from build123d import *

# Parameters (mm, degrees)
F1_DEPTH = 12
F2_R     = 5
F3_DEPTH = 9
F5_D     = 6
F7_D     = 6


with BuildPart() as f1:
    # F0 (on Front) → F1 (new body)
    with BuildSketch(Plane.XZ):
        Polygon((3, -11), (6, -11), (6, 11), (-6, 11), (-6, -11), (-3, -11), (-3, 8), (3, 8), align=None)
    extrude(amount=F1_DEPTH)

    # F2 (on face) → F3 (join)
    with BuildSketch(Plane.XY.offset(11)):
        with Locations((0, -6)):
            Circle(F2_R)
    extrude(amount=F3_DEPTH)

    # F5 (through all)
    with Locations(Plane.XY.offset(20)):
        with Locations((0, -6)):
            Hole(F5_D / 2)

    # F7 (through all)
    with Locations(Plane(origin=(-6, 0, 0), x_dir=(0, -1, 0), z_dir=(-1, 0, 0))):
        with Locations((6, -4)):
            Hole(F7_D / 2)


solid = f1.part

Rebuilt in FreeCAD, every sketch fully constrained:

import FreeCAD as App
import Part
import Sketcher
Q = App.Units.Quantity

doc = App.newDocument("Part")
params = doc.addObject("Spreadsheet::Sheet", "Params")
for row, (alias, value) in enumerate([
    ("sketch1_width", "3 mm"),
    ("sketch1_width2", "12 mm"),
    ("sketch1_height", "22 mm"),
    ("sketch1_height2", "19 mm"),
    ("pad1_length", "12 mm"),
    ("sketch2_diameter", "10 mm"),
    ("pad2_length", "9 mm"),
    ("sketch3_diameter", "6 mm"),
    ("hole_diameter", "6 mm"),
    ("sketch4_diameter", "6 mm"),
    ("hole2_diameter", "6 mm"),
], start=1):
    params.set(f"A{row}", alias)
    params.set(f"B{row}", "=" + value)
    params.setAlias(f"B{row}", alias)

body = doc.addObject("PartDesign::Body", "Body")

# Sketch on XZ plane
sketch1 = doc.addObject("Sketcher::SketchObject", "Sketch")
body.addObject(sketch1)
sketch1.AttachmentSupport = (doc.XZ_Plane, [""])
sketch1.MapMode = "FlatFace"
sketch1.addGeometry(Part.LineSegment(App.Vector(3, -11, 0), App.Vector(6, -11, 0)), False)
sketch1.addGeometry(Part.LineSegment(App.Vector(6, -11, 0), App.Vector(6, 11, 0)), False)
sketch1.addGeometry(Part.LineSegment(App.Vector(6, 11, 0), App.Vector(-6, 11, 0)), False)
sketch1.addGeometry(Part.LineSegment(App.Vector(-6, 11, 0), App.Vector(-6, -11, 0)), False)
sketch1.addGeometry(Part.LineSegment(App.Vector(-6, -11, 0), App.Vector(-3, -11, 0)), False)
sketch1.addGeometry(Part.LineSegment(App.Vector(-3, -11, 0), App.Vector(-3, 8, 0)), False)
sketch1.addGeometry(Part.LineSegment(App.Vector(-3, 8, 0), App.Vector(3, 8, 0)), False)
sketch1.addGeometry(Part.LineSegment(App.Vector(3, 8, 0), App.Vector(3, -11, 0)), False)
sketch1.addConstraint(Sketcher.Constraint("Coincident", 0, 2, 1, 1))
sketch1.addConstraint(Sketcher.Constraint("Coincident", 1, 2, 2, 1))
sketch1.addConstraint(Sketcher.Constraint("Coincident", 2, 2, 3, 1))
sketch1.addConstraint(Sketcher.Constraint("Coincident", 3, 2, 4, 1))
sketch1.addConstraint(Sketcher.Constraint("Coincident", 4, 2, 5, 1))
sketch1.addConstraint(Sketcher.Constraint("Coincident", 5, 2, 6, 1))
sketch1.addConstraint(Sketcher.Constraint("Coincident", 6, 2, 7, 1))
sketch1.addConstraint(Sketcher.Constraint("Coincident", 7, 2, 0, 1))
sketch1.addConstraint(Sketcher.Constraint("Horizontal", 0))
sketch1.addConstraint(Sketcher.Constraint("Vertical", 1))
sketch1.addConstraint(Sketcher.Constraint("Horizontal", 2))
sketch1.addConstraint(Sketcher.Constraint("Vertical", 3))
sketch1.addConstraint(Sketcher.Constraint("Horizontal", 4))
sketch1.addConstraint(Sketcher.Constraint("Vertical", 5))
sketch1.addConstraint(Sketcher.Constraint("Horizontal", 6))
sketch1.addConstraint(Sketcher.Constraint("Vertical", 7))
sketch1.addConstraint(Sketcher.Constraint("Symmetric", 0, 2, 2, 2, -1, 1))
sketch1.addConstraint(Sketcher.Constraint("Symmetric", 4, 2, 7, 2, -2))
sketch1.addConstraint(Sketcher.Constraint("DistanceX", 0, 1, 0, 2, Q("3 mm")))
sketch1.addConstraint(Sketcher.Constraint("DistanceX", 2, 2, 2, 1, Q("12 mm")))
sketch1.addConstraint(Sketcher.Constraint("DistanceY", 1, 1, 1, 2, Q("22 mm")))
sketch1.addConstraint(Sketcher.Constraint("DistanceY", 5, 1, 5, 2, Q("19 mm")))
sketch1.setExpression("Constraints[18]", "Params.sketch1_width")
sketch1.setExpression("Constraints[19]", "Params.sketch1_width2")
sketch1.setExpression("Constraints[20]", "Params.sketch1_height")
sketch1.setExpression("Constraints[21]", "Params.sketch1_height2")
pad1 = doc.addObject("PartDesign::Pad", "Pad")
body.addObject(pad1)
pad1.Profile = sketch1
pad1.setExpression("Length", "Params.pad1_length")

# Sketch on XY plane
sketch2 = doc.addObject("Sketcher::SketchObject", "Sketch001")
body.addObject(sketch2)
sketch2.AttachmentSupport = (doc.XY_Plane, [""])
sketch2.MapMode = "FlatFace"
sketch2.AttachmentOffset = App.Placement(App.Vector(0, 0, 11), App.Rotation())
sketch2.addGeometry(Part.Circle(App.Vector(0, -6, 0), App.Vector(0, 0, 1), 5), False)
sketch2.addConstraint(Sketcher.Constraint("PointOnObject", 0, 3, -2))
sketch2.addConstraint(Sketcher.Constraint("Diameter", 0, Q("10 mm")))
sketch2.addConstraint(Sketcher.Constraint("DistanceY", 0, 3, -1, 1, Q("6 mm")))
sketch2.setExpression("Constraints[1]", "Params.sketch2_diameter")
pad2 = doc.addObject("PartDesign::Pad", "Pad001")
body.addObject(pad2)
pad2.Profile = sketch2
pad2.setExpression("Length", "Params.pad2_length")

# Sketch on XY plane
sketch3 = doc.addObject("Sketcher::SketchObject", "Sketch002")
body.addObject(sketch3)
sketch3.AttachmentSupport = (doc.XY_Plane, [""])
sketch3.MapMode = "FlatFace"
sketch3.AttachmentOffset = App.Placement(App.Vector(0, 0, 20), App.Rotation())
sketch3.addGeometry(Part.Circle(App.Vector(0, -6, 0), App.Vector(0, 0, 1), 3), False)
sketch3.addConstraint(Sketcher.Constraint("PointOnObject", 0, 3, -2))
sketch3.addConstraint(Sketcher.Constraint("Diameter", 0, Q("6 mm")))
sketch3.addConstraint(Sketcher.Constraint("DistanceY", 0, 3, -1, 1, Q("6 mm")))
sketch3.setExpression("Constraints[1]", "Params.sketch3_diameter")
doc.recompute()
hole = doc.addObject("PartDesign::Hole", "Hole")
body.addObject(hole)
hole.Profile = sketch3
hole.ThreadType = "None"
hole.setExpression("Diameter", "Params.hole_diameter")
hole.DepthType = "ThroughAll"

# Sketch on YZ plane
sketch4 = doc.addObject("Sketcher::SketchObject", "Sketch003")
body.addObject(sketch4)
sketch4.AttachmentSupport = (doc.YZ_Plane, [""])
sketch4.MapMode = "FlatFace"
sketch4.AttachmentOffset = App.Placement(App.Vector(0, 0, -6), App.Rotation())
sketch4.addGeometry(Part.Circle(App.Vector(-6, -4, 0), App.Vector(0, 0, 1), 3), False)
sketch4.addConstraint(Sketcher.Constraint("Diameter", 0, Q("6 mm")))
sketch4.addConstraint(Sketcher.Constraint("DistanceX", 0, 3, -1, 1, Q("6 mm")))
sketch4.addConstraint(Sketcher.Constraint("DistanceY", 0, 3, -1, 1, Q("4 mm")))
sketch4.setExpression("Constraints[0]", "Params.sketch4_diameter")
doc.recompute()
hole2 = doc.addObject("PartDesign::Hole", "Hole001")
body.addObject(hole2)
hole2.Profile = sketch4
hole2.ThreadType = "None"
hole2.setExpression("Diameter", "Params.hole2_diameter")
hole2.DepthType = "ThroughAll"
hole2.Reversed = True

doc.recompute()
